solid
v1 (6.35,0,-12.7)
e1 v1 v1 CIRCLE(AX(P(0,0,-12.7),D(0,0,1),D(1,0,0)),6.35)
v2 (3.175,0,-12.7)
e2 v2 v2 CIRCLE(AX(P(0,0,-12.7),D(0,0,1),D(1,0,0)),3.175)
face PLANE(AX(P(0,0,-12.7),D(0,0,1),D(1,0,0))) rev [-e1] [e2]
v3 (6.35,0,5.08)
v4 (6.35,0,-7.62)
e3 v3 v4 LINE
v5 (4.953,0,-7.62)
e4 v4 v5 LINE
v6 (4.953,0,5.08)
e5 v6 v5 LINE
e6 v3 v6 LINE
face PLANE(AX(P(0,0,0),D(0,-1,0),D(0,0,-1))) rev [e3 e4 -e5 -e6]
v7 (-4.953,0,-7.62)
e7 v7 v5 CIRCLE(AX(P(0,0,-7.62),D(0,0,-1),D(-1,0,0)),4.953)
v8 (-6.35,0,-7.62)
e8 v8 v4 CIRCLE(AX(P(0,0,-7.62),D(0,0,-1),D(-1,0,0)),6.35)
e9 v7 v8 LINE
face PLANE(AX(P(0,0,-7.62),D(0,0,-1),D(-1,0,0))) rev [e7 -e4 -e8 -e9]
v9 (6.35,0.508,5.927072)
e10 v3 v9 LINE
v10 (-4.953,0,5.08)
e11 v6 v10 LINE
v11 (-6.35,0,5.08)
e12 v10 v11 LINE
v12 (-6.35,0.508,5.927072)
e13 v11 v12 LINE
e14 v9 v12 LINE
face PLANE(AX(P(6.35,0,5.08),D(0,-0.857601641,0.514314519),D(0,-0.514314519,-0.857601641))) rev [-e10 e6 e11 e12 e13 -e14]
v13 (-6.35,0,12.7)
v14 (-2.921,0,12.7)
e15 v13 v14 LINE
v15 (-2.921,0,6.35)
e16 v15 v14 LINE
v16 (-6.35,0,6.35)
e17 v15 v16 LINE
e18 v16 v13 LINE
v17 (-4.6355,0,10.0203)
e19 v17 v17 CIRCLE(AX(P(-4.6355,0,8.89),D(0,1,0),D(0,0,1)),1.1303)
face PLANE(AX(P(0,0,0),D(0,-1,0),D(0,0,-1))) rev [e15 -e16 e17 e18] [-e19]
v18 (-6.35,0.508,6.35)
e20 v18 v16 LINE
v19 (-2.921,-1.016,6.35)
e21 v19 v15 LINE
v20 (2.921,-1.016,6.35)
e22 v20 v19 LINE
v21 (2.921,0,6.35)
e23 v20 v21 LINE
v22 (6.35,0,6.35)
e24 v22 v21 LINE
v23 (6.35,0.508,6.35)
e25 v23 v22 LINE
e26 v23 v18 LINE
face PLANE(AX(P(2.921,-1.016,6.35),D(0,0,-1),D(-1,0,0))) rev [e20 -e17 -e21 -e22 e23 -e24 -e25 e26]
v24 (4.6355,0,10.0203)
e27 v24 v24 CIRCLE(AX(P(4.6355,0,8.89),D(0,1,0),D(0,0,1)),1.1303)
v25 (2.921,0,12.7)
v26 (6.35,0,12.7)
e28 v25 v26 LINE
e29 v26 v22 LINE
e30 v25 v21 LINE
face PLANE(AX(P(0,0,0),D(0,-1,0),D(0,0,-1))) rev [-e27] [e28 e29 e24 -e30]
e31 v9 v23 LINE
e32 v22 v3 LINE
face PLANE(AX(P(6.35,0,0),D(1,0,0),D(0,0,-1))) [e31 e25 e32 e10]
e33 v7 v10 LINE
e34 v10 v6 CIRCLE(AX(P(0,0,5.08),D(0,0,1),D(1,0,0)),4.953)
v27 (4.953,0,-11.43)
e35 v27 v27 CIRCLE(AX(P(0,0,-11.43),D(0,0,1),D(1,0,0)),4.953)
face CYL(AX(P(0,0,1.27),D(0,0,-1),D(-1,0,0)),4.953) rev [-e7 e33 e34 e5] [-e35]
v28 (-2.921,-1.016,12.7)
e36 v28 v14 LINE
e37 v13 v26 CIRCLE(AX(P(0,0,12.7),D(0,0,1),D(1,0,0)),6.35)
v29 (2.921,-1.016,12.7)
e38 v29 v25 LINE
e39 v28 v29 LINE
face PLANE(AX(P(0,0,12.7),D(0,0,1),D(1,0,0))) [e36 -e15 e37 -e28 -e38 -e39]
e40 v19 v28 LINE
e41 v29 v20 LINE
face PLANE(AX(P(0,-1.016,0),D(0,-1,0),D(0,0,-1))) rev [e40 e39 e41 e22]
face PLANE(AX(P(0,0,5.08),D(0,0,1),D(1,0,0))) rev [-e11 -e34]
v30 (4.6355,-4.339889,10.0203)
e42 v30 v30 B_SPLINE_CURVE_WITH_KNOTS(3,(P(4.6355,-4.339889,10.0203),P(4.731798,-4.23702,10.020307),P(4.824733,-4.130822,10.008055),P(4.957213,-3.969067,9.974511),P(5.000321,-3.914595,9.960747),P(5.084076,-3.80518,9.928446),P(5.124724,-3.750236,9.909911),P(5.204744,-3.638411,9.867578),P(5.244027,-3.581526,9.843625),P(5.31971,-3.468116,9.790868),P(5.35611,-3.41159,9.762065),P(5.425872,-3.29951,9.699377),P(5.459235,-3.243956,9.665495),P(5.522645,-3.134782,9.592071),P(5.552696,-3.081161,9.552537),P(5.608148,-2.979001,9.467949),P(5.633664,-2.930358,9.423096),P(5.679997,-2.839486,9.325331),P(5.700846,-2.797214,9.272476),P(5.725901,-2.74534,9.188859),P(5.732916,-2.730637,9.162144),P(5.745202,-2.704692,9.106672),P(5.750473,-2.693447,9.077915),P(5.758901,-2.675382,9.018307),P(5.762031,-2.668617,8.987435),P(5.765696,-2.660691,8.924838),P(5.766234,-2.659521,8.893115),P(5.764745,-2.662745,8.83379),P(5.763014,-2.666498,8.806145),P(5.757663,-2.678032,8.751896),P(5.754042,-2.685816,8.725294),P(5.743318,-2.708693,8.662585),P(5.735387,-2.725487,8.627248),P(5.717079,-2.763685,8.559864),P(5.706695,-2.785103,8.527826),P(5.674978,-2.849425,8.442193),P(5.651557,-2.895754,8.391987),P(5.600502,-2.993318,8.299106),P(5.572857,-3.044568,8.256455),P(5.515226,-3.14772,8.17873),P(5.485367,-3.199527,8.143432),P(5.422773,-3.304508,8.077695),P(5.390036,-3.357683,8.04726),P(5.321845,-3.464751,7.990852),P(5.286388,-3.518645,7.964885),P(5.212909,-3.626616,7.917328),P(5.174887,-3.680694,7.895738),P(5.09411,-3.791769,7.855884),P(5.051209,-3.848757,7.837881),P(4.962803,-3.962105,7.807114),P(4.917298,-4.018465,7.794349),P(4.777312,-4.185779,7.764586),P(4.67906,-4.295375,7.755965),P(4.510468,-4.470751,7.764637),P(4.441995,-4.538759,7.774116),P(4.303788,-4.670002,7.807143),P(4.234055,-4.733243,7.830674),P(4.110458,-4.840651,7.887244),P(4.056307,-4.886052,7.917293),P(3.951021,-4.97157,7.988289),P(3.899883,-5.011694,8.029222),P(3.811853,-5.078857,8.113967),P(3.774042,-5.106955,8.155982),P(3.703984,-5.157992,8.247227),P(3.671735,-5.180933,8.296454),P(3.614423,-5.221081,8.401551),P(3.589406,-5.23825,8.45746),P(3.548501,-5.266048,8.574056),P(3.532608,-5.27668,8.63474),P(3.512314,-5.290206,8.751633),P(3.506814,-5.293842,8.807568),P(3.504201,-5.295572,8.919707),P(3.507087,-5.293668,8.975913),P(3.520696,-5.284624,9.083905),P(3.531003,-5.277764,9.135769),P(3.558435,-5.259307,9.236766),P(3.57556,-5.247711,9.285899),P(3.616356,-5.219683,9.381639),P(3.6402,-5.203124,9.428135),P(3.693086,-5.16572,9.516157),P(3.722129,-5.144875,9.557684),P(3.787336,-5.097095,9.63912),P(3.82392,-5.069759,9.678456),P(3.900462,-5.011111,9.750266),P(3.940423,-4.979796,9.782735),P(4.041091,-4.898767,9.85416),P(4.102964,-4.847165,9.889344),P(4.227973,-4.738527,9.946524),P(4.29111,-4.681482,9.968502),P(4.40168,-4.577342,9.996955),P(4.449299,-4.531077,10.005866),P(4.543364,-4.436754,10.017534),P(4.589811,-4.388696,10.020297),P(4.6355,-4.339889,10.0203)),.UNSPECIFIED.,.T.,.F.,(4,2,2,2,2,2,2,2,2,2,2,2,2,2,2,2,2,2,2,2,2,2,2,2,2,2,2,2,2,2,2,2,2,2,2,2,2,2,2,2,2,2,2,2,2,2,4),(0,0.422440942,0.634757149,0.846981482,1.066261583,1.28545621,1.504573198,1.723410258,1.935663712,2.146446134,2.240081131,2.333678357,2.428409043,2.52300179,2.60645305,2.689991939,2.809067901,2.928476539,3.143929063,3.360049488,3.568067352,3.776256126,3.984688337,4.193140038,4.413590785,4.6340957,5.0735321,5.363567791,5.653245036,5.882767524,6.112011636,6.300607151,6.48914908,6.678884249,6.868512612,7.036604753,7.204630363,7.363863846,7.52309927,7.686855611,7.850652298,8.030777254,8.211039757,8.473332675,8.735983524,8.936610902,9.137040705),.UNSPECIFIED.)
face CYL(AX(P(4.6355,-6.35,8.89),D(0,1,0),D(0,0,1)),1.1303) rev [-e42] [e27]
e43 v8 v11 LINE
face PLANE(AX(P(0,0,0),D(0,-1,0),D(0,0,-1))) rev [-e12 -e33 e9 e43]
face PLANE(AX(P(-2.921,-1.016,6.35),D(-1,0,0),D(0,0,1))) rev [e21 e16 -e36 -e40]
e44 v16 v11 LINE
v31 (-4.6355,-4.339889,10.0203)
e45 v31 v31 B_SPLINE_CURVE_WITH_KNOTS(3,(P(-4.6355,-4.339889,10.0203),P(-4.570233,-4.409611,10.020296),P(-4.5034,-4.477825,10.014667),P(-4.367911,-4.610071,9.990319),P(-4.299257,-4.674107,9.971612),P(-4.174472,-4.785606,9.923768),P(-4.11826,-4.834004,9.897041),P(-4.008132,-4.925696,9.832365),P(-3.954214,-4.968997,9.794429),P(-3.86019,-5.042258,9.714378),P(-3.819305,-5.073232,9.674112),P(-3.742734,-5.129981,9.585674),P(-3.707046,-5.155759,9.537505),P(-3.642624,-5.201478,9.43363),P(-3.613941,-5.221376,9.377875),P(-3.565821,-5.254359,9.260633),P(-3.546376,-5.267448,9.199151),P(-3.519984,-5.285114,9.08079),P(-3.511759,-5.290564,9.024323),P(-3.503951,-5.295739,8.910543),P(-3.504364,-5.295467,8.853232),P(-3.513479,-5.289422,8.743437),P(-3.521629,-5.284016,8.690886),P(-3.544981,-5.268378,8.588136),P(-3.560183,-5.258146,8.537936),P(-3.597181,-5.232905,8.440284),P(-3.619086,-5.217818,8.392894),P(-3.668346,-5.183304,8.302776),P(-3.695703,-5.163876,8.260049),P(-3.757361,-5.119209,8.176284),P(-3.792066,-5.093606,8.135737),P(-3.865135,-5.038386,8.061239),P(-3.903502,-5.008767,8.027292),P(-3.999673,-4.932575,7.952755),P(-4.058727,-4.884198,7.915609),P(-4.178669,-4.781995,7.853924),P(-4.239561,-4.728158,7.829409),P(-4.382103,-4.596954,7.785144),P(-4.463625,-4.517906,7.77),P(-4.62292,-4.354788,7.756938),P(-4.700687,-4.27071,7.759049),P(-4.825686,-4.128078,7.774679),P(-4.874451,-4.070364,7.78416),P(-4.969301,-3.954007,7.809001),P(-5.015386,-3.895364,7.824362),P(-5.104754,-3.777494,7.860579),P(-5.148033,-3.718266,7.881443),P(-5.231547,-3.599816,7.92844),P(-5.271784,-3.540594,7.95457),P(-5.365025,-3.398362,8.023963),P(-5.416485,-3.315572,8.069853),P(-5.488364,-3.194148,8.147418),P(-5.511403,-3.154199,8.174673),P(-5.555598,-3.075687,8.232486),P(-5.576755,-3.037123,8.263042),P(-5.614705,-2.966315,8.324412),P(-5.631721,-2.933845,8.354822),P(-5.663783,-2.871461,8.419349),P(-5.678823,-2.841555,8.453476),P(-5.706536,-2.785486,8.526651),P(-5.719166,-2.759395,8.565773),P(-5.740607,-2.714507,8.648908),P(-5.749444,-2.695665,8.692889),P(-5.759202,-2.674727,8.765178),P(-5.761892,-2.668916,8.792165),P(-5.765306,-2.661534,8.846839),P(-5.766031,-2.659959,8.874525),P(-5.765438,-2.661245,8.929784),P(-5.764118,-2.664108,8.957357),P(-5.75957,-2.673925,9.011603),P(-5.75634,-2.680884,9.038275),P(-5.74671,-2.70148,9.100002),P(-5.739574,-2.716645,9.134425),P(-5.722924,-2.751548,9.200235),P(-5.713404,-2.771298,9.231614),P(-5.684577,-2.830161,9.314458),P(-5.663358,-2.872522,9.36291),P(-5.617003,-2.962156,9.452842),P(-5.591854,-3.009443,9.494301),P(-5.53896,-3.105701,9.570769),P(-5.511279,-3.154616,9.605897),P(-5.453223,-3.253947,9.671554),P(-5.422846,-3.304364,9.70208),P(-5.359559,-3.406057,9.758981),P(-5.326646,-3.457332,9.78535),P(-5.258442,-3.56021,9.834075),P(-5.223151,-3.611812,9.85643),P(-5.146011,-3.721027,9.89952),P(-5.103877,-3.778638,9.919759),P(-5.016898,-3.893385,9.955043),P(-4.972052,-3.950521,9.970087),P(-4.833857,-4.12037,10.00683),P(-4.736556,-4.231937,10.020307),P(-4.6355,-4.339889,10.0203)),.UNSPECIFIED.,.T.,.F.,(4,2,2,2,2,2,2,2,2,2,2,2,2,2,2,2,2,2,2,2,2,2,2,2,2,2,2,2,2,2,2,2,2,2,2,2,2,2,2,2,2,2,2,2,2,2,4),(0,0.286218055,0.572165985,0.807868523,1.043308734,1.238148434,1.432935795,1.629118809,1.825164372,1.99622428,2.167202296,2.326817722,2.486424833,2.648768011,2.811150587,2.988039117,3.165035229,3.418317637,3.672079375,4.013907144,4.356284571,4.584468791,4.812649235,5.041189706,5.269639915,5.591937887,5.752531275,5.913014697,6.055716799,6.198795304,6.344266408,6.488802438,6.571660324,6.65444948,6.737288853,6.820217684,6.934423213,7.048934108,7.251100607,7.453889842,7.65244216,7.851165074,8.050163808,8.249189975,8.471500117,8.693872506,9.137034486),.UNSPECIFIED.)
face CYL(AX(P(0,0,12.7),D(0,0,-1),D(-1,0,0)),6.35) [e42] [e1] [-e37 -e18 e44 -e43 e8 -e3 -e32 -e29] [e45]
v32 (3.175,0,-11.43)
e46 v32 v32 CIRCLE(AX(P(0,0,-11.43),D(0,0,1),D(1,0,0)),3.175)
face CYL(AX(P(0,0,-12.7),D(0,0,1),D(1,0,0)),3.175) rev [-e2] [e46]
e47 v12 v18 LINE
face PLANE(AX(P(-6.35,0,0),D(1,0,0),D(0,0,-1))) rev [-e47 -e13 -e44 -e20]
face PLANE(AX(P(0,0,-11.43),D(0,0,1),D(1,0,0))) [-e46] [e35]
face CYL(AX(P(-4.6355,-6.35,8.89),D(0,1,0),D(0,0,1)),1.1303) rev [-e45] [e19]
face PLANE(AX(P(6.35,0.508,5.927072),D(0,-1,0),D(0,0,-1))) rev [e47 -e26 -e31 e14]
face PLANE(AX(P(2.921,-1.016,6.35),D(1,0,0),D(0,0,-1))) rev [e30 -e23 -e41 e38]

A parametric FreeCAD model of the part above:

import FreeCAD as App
import Part
import Sketcher
Q = App.Units.Quantity

doc = App.newDocument("Part")
params = doc.addObject("Spreadsheet::Sheet", "Params")
for row, (alias, value) in enumerate([
    ("sketch1_diameter", "0.5 in"),
    ("pad1_length", "1 in"),
    ("sketch2_width", "0.5 in"),
    ("sketch2_height", "0.6 in"),
    ("sketch3_diameter", "0.39 in"),
    ("pocket2_length", "0.25 in"),
    ("pocket2_length2", "0.25 in"),
    ("sketch4_diameter", "0.25 in"),
    ("sketch5_width", "0.23 in"),
    ("sketch5_height", "0.25 in"),
    ("pocket4_length", "0.04 in"),
    ("sketch6_diameter", "0.089 in"),
    ("sketch7_diameter", "0.39 in"),
    ("pocket6_length", "0.65 in"),
    ("pocket7_length", "0.5 in"),
    ("sketch9_width", "0.02 in"),
    ("sketch9_height", "0.05 in"),
    ("pad2_length", "0.5 in"),
], start=1):
    params.set(f"A{row}", alias)
    params.set(f"B{row}", "=" + value)
    params.setAlias(f"B{row}", alias)

body = doc.addObject("PartDesign::Body", "Body")

sketch1 = body.newObject("Sketcher::SketchObject", "Sketch")
sketch1.AttachmentSupport = (doc.getObject("XY_Plane"), [""])
sketch1.MapMode = "FlatFace"
sketch1.addGeometry(Part.Circle(App.Vector(0, 0, 0), App.Vector(0, 0, 1), 6), False)
sketch1.addConstraint(Sketcher.Constraint("Coincident", 0, 3, -1, 1))
sketch1.addConstraint(Sketcher.Constraint("Diameter", 0, Q("0.5 in")))
sketch1.setExpression("Constraints[1]", "Params.sketch1_diameter")
pad1 = body.newObject("PartDesign::Pad", "Pad")
pad1.Profile = sketch1
pad1.setExpression("Length", "Params.pad1_length")
pad1.Midplane = True

sketch2 = body.newObject("Sketcher::SketchObject", "Sketch001")
sketch2.AttachmentSupport = (doc.getObject("XZ_Plane"), [""])
sketch2.MapMode = "FlatFace"
sketch2.addGeometry(Part.LineSegment(App.Vector(-6, -3, 0), App.Vector(-6, 13, 0)), False)
sketch2.addGeometry(Part.LineSegment(App.Vector(-6, 13, 0), App.Vector(6, 13, 0)), False)
sketch2.addGeometry(Part.LineSegment(App.Vector(6, 13, 0), App.Vector(6, -3, 0)), False)
sketch2.addGeometry(Part.LineSegment(App.Vector(6, -3, 0), App.Vector(-6, -3, 0)), False)
sketch2.addConstraint(Sketcher.Constraint("Coincident", 0, 2, 1, 1))
sketch2.addConstraint(Sketcher.Constraint("Coincident", 1, 2, 2, 1))
sketch2.addConstraint(Sketcher.Constraint("Coincident", 2, 2, 3, 1))
sketch2.addConstraint(Sketcher.Constraint("Coincident", 3, 2, 0, 1))
sketch2.addConstraint(Sketcher.Constraint("Vertical", 0))
sketch2.addConstraint(Sketcher.Constraint("Horizontal", 1))
sketch2.addConstraint(Sketcher.Constraint("Vertical", 2))
sketch2.addConstraint(Sketcher.Constraint("Horizontal", 3))
sketch2.addConstraint(Sketcher.Constraint("DistanceX", 1, 1, 1, 2, Q("0.5 in")))
sketch2.addConstraint(Sketcher.Constraint("DistanceY", 0, 1, 0, 2, Q("0.6 in")))
sketch2.addConstraint(Sketcher.Constraint("DistanceY", -1, 1, 0, 2, Q("0.5 in")))
sketch2.addConstraint(Sketcher.Constraint("DistanceX", 0, 2, -1, 1, Q("0.25 in")))
sketch2.setExpression("Constraints[8]", "Params.sketch2_width")
sketch2.setExpression("Constraints[9]", "Params.sketch2_height")
pocket1 = body.newObject("PartDesign::Pocket", "Pocket")
pocket1.Profile = sketch2
pocket1.Type = "ThroughAll"

sketch3 = body.newObject("Sketcher::SketchObject", "Sketch002")
sketch3.AttachmentSupport = (doc.getObject("XY_Plane"), [""])
sketch3.MapMode = "FlatFace"
sketch3.AttachmentOffset = App.Placement(App.Vector(0, 0, -0.2 * 25.4), App.Rotation())
sketch3.addGeometry(Part.Circle(App.Vector(0, 0, 0), App.Vector(0, 0, 1), 5), False)
sketch3.addConstraint(Sketcher.Constraint("Coincident", 0, 3, -1, 1))
sketch3.addConstraint(Sketcher.Constraint("Diameter", 0, Q("0.39 in")))
sketch3.setExpression("Constraints[1]", "Params.sketch3_diameter")
pocket2 = body.newObject("PartDesign::Pocket", "Pocket001")
pocket2.Profile = sketch3
pocket2.Type = "TwoLengths"
pocket2.setExpression("Length", "Params.pocket2_length")
pocket2.setExpression("Length2", "Params.pocket2_length2")
pocket2.Reversed = True

sketch4 = body.newObject("Sketcher::SketchObject", "Sketch003")
sketch4.AttachmentSupport = (doc.getObject("XY_Plane"), [""])
sketch4.MapMode = "FlatFace"
sketch4.AttachmentOffset = App.Placement(App.Vector(0, 0, -0.45 * 25.4), App.Rotation())
sketch4.addGeometry(Part.Circle(App.Vector(0, 0, 0), App.Vector(0, 0, 1), 3.2), False)
sketch4.addConstraint(Sketcher.Constraint("Coincident", 0, 3, -1, 1))
sketch4.addConstraint(Sketcher.Constraint("Diameter", 0, Q("0.25 in")))
sketch4.setExpression("Constraints[1]", "Params.sketch4_diameter")
pocket3 = body.newObject("PartDesign::Pocket", "Pocket002")
pocket3.Profile = sketch4
pocket3.Type = "ThroughAll"

sketch5 = body.newObject("Sketcher::SketchObject", "Sketch004")
sketch5.AttachmentSupport = (doc.getObject("XZ_Plane"), [""])
sketch5.MapMode = "FlatFace"
sketch5.addGeometry(Part.LineSegment(App.Vector(-3, 6, 0), App.Vector(-3, 13, 0)), False)
sketch5.addGeometry(Part.LineSegment(App.Vector(-3, 13, 0), App.Vector(3, 13, 0)), False)
sketch5.addGeometry(Part.LineSegment(App.Vector(3, 13, 0), App.Vector(3, 6, 0)), False)
sketch5.addGeometry(Part.LineSegment(App.Vector(3, 6, 0), App.Vector(-3, 6, 0)), False)
sketch5.addConstraint(Sketcher.Constraint("Coincident", 0, 2, 1, 1))
sketch5.addConstraint(Sketcher.Constraint("Coincident", 1, 2, 2, 1))
sketch5.addConstraint(Sketcher.Constraint("Coincident", 2, 2, 3, 1))
sketch5.addConstraint(Sketcher.Constraint("Coincident", 3, 2, 0, 1))
sketch5.addConstraint(Sketcher.Constraint("Vertical", 0))
sketch5.addConstraint(Sketcher.Constraint("Horizontal", 1))
sketch5.addConstraint(Sketcher.Constraint("Vertical", 2))
sketch5.addConstraint(Sketcher.Constraint("Horizontal", 3))
sketch5.addConstraint(Sketcher.Constraint("DistanceX", 1, 1, 1, 2, Q("0.23 in")))
sketch5.addConstraint(Sketcher.Constraint("DistanceY", 0, 1, 0, 2, Q("0.25 in")))
sketch5.addConstraint(Sketcher.Constraint("DistanceY", -1, 1, 0, 2, Q("0.5 in")))
sketch5.addConstraint(Sketcher.Constraint("DistanceX", 0, 2, -1, 1, Q("0.115 in")))
sketch5.setExpression("Constraints[8]", "Params.sketch5_width")
sketch5.setExpression("Constraints[9]", "Params.sketch5_height")
pocket4 = body.newObject("PartDesign::Pocket", "Pocket003")
pocket4.Profile = sketch5
pocket4.setExpression("Length", "Params.pocket4_length")
pocket4.Reversed = True

sketch6 = body.newObject("Sketcher::SketchObject", "Sketch005")
sketch6.AttachmentSupport = (doc.getObject("XZ_Plane"), [""])
sketch6.MapMode = "FlatFace"
sketch6.addGeometry(Part.Circle(App.Vector(-4.6, 8.9, 0), App.Vector(0, 0, 1), 1.1), False)
sketch6.addGeometry(Part.Circle(App.Vector(4.6, 8.9, 0), App.Vector(0, 0, 1), 1.1), False)
sketch6.addConstraint(Sketcher.Constraint("Equal", 0, 1))
sketch6.addConstraint(Sketcher.Constraint("Symmetric", 0, 3, 1, 3, -2))
sketch6.addConstraint(Sketcher.Constraint("Diameter", 0, Q("0.089 in")))
sketch6.addConstraint(Sketcher.Constraint("DistanceY", -1, 1, 0, 3, Q("0.35 in")))
sketch6.addConstraint(Sketcher.Constraint("DistanceX", 0, 3, 1, 3, Q("0.365 in")))
sketch6.setExpression("Constraints[2]", "Params.sketch6_diameter")
pocket5 = body.newObject("PartDesign::Pocket", "Pocket004")
pocket5.Profile = sketch6
pocket5.Type = "ThroughAll"
pocket5.Reversed = True

sketch7 = body.newObject("Sketcher::SketchObject", "Sketch006")
sketch7.AttachmentSupport = (doc.getObject("XY_Plane"), [""])
sketch7.MapMode = "FlatFace"
sketch7.AttachmentOffset = App.Placement(App.Vector(0, 0, -0.45 * 25.4), App.Rotation())
sketch7.addGeometry(Part.Circle(App.Vector(0, 0, 0), App.Vector(0, 0, 1), 5), False)
sketch7.addConstraint(Sketcher.Constraint("Coincident", 0, 3, -1, 1))
sketch7.addConstraint(Sketcher.Constraint("Diameter", 0, Q("0.39 in")))
sketch7.setExpression("Constraints[1]", "Params.sketch7_diameter")
pocket6 = body.newObject("PartDesign::Pocket", "Pocket005")
pocket6.Profile = sketch7
pocket6.setExpression("Length", "Params.pocket6_length")
pocket6.Reversed = True

sketch8 = body.newObject("Sketcher::SketchObject", "Sketch007")
sketch8.AttachmentSupport = (doc.getObject("XY_Plane"), [""])
sketch8.MapMode = "FlatFace"
sketch8.AttachmentOffset = App.Placement(App.Vector(0, 0, 0.2 * 25.4), App.Rotation())
sketch8.addGeometry(Part.LineSegment(App.Vector(7, 7, 0), App.Vector(7, 0, 0)), False)
sketch8.addGeometry(Part.LineSegment(App.Vector(7, 0, 0), App.Vector(-6, 0, 0)), False)
sketch8.addGeometry(Part.LineSegment(App.Vector(-6, 0, 0), App.Vector(-6, 7, 0)), False)
sketch8.addGeometry(Part.LineSegment(App.Vector(-6, 7, 0), App.Vector(7, 7, 0)), False)
sketch8.addConstraint(Sketcher.Constraint("Coincident", 0, 2, 1, 1))
sketch8.addConstraint(Sketcher.Constraint("Coincident", 1, 2, 2, 1))
sketch8.addConstraint(Sketcher.Constraint("Coincident", 2, 2, 3, 1))
sketch8.addConstraint(Sketcher.Constraint("Coincident", 3, 2, 0, 1))
sketch8.addConstraint(Sketcher.Constraint("Vertical", 0))
sketch8.addConstraint(Sketcher.Constraint("Horizontal", 1))
sketch8.addConstraint(Sketcher.Constraint("Vertical", 2))
sketch8.addConstraint(Sketcher.Constraint("Horizontal", 3))
sketch8.addConstraint(Sketcher.Constraint("PointOnObject", 0, 2, -1))
sketch8.addConstraint(Sketcher.Constraint("DistanceX", 1, 2, -1, 1, Q("0.25 in")))
sketch8.addConstraint(Sketcher.Constraint("DistanceY", 0, 2, 0, 1, 6.562138))
sketch8.addConstraint(Sketcher.Constraint("DistanceX", 1, 2, 1, 1, 12.869582))
pocket7 = body.newObject("PartDesign::Pocket", "Pocket006")
pocket7.Profile = sketch8
pocket7.setExpression("Length", "Params.pocket7_length")

sketch9 = body.newObject("Sketcher::SketchObject", "Sketch008")
sketch9.AttachmentSupport = (doc.getObject("YZ_Plane"), [""])
sketch9.MapMode = "FlatFace"
sketch9.addGeometry(Part.LineSegment(App.Vector(0, 6.35, 0), App.Vector(0, 5.08, 0)), False)
sketch9.addGeometry(Part.LineSegment(App.Vector(0, 5.08, 0), App.Vector(0.51, 5.93, 0)), False)
sketch9.addGeometry(Part.LineSegment(App.Vector(0.51, 5.93, 0), App.Vector(0.51, 6.35, 0)), False)
sketch9.addGeometry(Part.LineSegment(App.Vector(0.51, 6.35, 0), App.Vector(0, 6.35, 0)), False)
sketch9.addConstraint(Sketcher.Constraint("Coincident", 0, 2, 1, 1))
sketch9.addConstraint(Sketcher.Constraint("Coincident", 1, 2, 2, 1))
sketch9.addConstraint(Sketcher.Constraint("Coincident", 2, 2, 3, 1))
sketch9.addConstraint(Sketcher.Constraint("Coincident", 3, 2, 0, 1))
sketch9.addConstraint(Sketcher.Constraint("Vertical", 0))
sketch9.addConstraint(Sketcher.Constraint("Vertical", 2))
sketch9.addConstraint(Sketcher.Constraint("Horizontal", 3))
sketch9.addConstraint(Sketcher.Constraint("PointOnObject", 0, 2, -2))
sketch9.addConstraint(Sketcher.Constraint("DistanceX", 3, 2, 3, 1, Q("0.02 in")))
sketch9.addConstraint(Sketcher.Constraint("DistanceY", 0, 2, 0, 1, Q("0.05 in")))
sketch9.addConstraint(Sketcher.Constraint("DistanceY", -1, 1, 0, 2, Q("0.2 in")))
sketch9.addConstraint(Sketcher.Constraint("DistanceY", 2, 1, 2, 2, 0.422928))
sketch9.setExpression("Constraints[8]", "Params.sketch9_width")
sketch9.setExpression("Constraints[9]", "Params.sketch9_height")
pad2 = body.newObject("PartDesign::Pad", "Pad001")
pad2.Profile = sketch9
pad2.setExpression("Length", "Params.pad2_length")
pad2.Midplane = True

doc.recompute()
